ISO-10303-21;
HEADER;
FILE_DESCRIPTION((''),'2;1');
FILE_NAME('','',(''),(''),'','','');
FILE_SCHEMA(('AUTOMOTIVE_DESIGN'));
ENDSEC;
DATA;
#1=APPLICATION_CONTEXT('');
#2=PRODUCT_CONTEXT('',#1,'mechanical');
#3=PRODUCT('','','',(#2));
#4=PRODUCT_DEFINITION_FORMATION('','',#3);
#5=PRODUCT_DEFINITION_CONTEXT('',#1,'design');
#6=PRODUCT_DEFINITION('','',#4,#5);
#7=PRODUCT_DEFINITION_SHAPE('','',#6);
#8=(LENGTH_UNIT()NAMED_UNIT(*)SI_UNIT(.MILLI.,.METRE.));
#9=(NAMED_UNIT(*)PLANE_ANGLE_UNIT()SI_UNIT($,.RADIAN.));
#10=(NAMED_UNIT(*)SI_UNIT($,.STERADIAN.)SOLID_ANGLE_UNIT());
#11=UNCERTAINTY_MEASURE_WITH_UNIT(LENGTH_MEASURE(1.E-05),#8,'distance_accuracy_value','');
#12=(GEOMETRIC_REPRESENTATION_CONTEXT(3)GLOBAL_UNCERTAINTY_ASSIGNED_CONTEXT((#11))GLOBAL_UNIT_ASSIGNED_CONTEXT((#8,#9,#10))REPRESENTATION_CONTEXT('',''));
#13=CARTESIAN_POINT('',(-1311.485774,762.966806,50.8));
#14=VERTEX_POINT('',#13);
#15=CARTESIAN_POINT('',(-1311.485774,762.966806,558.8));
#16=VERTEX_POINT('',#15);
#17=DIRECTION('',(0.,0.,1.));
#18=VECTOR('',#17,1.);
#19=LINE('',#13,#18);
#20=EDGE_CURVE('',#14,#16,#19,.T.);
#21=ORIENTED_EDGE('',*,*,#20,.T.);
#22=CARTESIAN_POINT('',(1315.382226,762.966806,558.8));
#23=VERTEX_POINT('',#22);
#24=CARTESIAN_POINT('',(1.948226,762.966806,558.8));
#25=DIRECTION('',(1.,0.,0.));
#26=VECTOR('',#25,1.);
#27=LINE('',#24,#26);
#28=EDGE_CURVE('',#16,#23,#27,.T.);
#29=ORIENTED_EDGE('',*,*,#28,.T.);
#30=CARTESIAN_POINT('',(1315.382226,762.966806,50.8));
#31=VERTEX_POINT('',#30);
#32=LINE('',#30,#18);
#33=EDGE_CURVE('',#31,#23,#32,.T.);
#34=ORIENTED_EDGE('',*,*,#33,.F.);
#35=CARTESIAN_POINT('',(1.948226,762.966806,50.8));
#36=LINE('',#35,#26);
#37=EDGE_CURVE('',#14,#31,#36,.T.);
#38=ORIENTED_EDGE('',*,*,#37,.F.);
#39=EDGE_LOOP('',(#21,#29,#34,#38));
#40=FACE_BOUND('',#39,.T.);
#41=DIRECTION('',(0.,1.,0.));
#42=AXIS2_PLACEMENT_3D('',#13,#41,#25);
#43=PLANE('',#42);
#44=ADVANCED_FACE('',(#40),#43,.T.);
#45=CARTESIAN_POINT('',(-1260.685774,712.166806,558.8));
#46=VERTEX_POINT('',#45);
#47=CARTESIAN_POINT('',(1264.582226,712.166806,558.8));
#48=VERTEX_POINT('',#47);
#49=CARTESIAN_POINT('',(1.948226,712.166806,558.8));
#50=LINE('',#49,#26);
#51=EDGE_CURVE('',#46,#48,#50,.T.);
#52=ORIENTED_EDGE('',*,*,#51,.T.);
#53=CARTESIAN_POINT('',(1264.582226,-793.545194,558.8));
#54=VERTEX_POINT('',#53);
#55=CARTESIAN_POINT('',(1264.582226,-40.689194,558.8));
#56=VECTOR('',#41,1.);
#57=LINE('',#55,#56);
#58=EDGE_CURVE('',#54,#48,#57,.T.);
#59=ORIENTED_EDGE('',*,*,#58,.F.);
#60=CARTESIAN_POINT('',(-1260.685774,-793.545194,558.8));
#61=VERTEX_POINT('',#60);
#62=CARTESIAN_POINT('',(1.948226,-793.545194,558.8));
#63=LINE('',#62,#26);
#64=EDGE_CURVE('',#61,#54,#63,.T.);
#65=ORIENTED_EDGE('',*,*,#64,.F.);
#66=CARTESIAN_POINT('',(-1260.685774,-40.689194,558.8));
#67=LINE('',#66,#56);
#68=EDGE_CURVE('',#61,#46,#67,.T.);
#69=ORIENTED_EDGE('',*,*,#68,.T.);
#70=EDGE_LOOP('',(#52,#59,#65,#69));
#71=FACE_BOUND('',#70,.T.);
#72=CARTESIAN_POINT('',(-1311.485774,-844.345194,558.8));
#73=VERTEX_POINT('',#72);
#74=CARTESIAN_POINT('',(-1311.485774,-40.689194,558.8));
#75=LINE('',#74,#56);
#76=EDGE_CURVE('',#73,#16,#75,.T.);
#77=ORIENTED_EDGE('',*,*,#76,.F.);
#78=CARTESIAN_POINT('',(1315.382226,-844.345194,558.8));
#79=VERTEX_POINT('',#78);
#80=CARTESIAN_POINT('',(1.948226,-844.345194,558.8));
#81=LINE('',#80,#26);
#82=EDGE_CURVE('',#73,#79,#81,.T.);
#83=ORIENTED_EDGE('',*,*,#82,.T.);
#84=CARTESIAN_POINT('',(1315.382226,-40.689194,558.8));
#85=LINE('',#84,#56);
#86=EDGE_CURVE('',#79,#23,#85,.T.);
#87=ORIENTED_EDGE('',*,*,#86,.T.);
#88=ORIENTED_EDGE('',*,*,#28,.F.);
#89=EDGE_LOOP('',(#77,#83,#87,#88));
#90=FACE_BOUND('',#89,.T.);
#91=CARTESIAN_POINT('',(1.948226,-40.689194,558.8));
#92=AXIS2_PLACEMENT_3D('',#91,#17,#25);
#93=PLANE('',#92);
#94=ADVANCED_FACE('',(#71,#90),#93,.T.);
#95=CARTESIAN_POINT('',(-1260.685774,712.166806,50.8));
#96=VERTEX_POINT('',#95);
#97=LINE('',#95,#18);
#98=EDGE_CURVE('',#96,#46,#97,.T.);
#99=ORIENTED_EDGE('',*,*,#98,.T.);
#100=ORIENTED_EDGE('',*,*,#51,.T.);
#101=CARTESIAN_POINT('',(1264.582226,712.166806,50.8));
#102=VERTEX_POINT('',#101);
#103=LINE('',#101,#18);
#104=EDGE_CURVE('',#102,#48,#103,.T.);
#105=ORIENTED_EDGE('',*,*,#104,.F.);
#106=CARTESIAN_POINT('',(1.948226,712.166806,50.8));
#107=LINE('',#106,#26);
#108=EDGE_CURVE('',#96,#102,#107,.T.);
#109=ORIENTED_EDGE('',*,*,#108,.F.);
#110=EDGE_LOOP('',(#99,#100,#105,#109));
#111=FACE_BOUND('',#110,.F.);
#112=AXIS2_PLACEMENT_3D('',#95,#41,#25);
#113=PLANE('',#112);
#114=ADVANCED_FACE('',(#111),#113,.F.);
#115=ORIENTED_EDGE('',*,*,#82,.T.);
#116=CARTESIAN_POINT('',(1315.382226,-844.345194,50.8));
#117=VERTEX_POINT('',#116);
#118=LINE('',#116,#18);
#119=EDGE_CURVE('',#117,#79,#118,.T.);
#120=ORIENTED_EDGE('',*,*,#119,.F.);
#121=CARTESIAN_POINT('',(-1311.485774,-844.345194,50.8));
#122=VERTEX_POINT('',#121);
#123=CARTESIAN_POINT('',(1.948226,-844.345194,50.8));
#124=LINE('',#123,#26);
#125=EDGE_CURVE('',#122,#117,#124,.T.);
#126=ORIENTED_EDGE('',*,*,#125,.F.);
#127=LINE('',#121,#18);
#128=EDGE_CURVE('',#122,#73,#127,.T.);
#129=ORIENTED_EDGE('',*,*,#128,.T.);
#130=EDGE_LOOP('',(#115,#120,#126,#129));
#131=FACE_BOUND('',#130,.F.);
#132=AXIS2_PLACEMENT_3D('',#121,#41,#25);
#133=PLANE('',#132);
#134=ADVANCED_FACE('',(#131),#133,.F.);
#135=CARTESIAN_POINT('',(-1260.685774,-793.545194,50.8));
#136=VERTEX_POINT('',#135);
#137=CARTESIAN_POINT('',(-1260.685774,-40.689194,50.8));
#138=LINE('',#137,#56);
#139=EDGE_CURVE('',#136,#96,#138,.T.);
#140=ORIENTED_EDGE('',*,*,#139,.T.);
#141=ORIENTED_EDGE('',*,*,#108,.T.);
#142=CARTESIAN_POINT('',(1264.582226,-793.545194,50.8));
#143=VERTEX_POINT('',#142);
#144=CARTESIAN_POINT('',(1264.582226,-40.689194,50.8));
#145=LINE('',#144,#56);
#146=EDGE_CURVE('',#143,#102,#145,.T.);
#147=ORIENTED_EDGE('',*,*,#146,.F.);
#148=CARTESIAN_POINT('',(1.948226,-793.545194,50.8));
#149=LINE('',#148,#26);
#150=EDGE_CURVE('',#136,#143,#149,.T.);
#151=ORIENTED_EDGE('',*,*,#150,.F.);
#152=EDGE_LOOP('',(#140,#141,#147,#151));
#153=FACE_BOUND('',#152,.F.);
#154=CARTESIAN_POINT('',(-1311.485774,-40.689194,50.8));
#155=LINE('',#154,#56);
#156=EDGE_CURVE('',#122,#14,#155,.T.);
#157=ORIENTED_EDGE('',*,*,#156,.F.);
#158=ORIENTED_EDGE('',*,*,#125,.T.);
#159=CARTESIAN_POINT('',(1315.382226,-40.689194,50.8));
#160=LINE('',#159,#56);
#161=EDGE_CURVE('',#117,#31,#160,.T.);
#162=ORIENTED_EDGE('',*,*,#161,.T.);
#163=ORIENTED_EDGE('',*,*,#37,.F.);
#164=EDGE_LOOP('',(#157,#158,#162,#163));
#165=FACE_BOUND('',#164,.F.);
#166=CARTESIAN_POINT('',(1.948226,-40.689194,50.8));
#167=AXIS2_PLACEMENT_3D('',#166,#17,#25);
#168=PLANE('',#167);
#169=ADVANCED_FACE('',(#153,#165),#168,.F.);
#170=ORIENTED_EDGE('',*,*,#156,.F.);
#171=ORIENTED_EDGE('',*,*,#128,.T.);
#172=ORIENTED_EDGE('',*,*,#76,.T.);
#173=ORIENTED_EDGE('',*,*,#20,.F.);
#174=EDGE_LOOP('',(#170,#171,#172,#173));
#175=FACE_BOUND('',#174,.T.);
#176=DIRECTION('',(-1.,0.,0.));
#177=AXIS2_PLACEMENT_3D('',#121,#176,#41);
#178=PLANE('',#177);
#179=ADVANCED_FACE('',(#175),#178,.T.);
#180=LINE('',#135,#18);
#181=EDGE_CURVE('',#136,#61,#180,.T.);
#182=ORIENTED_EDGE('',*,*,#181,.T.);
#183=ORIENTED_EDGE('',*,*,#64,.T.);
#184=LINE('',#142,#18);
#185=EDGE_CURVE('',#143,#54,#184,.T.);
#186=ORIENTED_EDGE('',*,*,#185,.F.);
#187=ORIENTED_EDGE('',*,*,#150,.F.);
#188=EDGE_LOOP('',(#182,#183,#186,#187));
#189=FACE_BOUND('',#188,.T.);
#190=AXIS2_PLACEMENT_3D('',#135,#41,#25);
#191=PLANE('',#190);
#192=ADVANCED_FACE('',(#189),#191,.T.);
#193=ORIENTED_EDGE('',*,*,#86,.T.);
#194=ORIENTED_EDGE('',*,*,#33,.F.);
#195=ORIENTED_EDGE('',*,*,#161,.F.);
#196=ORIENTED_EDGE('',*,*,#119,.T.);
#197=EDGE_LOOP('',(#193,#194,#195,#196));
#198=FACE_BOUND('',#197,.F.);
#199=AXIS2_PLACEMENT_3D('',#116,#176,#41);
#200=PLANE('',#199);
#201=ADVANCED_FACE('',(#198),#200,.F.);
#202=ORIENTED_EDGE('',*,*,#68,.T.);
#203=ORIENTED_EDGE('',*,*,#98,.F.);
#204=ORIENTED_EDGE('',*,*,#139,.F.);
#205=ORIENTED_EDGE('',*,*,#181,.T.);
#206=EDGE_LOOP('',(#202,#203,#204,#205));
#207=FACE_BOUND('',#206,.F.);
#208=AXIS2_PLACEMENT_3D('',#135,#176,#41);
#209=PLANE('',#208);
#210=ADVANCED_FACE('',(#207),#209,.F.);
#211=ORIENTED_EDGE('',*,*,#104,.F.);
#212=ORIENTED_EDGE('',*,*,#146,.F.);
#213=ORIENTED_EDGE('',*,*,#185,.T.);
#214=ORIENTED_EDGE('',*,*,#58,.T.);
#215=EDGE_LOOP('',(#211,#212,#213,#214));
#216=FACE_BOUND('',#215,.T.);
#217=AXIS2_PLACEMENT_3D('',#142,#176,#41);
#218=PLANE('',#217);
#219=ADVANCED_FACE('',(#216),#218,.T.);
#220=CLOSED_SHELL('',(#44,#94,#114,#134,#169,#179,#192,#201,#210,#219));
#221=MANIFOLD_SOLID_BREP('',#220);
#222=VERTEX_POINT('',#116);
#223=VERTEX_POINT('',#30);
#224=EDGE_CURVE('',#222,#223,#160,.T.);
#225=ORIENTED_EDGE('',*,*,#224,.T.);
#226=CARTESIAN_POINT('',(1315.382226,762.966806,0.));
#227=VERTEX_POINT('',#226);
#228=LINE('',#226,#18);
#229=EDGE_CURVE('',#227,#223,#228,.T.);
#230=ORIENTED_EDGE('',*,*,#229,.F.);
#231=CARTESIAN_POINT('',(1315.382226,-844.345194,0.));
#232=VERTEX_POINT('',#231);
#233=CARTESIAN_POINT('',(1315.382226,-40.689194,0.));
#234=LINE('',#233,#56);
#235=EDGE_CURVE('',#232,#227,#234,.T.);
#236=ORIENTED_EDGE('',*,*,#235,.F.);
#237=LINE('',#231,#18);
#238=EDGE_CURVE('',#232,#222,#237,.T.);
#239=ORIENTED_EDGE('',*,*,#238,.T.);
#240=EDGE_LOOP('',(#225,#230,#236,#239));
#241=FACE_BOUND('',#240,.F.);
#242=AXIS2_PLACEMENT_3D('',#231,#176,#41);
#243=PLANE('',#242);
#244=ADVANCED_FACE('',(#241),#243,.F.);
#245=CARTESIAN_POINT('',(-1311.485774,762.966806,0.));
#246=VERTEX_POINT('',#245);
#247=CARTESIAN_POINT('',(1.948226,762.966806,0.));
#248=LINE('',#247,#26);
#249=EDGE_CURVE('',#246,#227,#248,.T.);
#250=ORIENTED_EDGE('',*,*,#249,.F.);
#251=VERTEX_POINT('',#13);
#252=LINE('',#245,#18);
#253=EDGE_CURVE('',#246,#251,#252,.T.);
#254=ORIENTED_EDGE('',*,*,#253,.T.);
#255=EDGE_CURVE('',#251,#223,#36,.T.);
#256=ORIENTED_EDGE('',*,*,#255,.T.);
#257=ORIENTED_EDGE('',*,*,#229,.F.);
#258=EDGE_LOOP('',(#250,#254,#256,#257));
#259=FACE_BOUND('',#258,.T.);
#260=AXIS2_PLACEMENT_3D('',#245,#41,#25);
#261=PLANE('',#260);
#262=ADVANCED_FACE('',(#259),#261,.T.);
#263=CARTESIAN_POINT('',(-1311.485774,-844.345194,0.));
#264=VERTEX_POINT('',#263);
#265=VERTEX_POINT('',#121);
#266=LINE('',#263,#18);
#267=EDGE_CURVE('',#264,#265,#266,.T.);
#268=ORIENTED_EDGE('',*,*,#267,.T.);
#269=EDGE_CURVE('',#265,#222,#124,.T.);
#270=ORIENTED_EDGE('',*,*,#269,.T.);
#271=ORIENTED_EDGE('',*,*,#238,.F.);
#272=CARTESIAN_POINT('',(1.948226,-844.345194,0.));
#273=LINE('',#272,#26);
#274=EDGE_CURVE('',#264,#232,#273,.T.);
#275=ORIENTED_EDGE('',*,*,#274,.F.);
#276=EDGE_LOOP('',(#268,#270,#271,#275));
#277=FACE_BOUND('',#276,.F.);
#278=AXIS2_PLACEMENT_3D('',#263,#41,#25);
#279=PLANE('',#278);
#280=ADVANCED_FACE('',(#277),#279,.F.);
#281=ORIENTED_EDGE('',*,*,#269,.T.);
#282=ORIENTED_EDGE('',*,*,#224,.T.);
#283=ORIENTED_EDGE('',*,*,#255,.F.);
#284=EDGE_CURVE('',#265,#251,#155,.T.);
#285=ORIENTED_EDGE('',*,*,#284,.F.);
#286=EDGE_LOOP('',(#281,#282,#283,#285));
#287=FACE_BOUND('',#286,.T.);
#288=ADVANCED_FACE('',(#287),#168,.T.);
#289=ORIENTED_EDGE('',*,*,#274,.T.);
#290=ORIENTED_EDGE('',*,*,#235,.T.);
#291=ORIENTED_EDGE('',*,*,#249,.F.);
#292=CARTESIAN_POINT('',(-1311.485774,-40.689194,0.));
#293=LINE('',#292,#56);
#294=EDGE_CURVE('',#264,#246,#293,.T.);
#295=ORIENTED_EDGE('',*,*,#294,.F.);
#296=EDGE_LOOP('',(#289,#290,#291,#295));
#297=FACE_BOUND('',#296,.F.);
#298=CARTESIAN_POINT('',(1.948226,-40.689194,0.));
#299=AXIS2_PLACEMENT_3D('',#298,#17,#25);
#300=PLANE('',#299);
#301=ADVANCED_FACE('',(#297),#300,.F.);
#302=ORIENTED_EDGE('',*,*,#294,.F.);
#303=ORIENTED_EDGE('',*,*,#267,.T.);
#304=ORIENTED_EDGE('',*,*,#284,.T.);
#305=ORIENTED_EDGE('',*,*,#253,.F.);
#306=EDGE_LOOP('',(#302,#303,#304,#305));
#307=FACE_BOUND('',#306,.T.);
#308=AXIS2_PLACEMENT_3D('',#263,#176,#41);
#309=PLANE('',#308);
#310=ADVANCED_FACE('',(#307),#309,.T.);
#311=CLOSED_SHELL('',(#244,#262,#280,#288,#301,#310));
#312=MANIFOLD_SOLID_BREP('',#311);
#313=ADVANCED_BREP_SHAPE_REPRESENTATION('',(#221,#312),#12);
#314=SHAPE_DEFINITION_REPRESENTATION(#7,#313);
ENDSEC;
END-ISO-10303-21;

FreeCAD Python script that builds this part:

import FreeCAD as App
import Part
import Sketcher
from FreeCAD import Vector
Q = App.Units.Quantity

doc = App.newDocument("Part")
params = doc.addObject("Spreadsheet::Sheet", "Params")
for row, (alias, value) in enumerate([
    ("sketch1_width", "103.42 in"),
    ("sketch1_height", "63.28 in"),
    ("pad1_length", "2 in"),
    ("sketch2_width", "103.42 in"),
    ("sketch2_height", "63.28 in"),
    ("pad2_length", "20 in"),
], start=1):
    params.set(f"A{row}", alias)
    params.set(f"B{row}", "=" + value)
    params.setAlias(f"B{row}", alias)

body = doc.addObject("PartDesign::Body", "Body")

sketch1 = body.newObject("Sketcher::SketchObject", "Sketch")
sketch1.AttachmentSupport = (doc.getObject("XY_Plane"), [""])
sketch1.MapMode = "FlatFace"
sketch1.addGeometry([
    Part.LineSegment(Vector(-1311, 763, 0), Vector(-1311, -844, 0)),
    Part.LineSegment(Vector(-1311, -844, 0), Vector(1315, -844, 0)),
    Part.LineSegment(Vector(1315, -844, 0), Vector(1315, 763, 0)),
    Part.LineSegment(Vector(1315, 763, 0), Vector(-1311, 763, 0)),
], False)
sketch1.addConstraint([
    Sketcher.Constraint("Coincident", 0, 2, 1, 1),
    Sketcher.Constraint("Coincident", 1, 2, 2, 1),
    Sketcher.Constraint("Coincident", 2, 2, 3, 1),
    Sketcher.Constraint("Coincident", 3, 2, 0, 1),
    Sketcher.Constraint("Vertical", 0),
    Sketcher.Constraint("Horizontal", 1),
    Sketcher.Constraint("Vertical", 2),
    Sketcher.Constraint("Horizontal", 3),
    Sketcher.Constraint("DistanceX", 1, 1, 1, 2, Q("103.42 in")),
    Sketcher.Constraint("DistanceY", 0, 2, 0, 1, Q("63.28 in")),
    Sketcher.Constraint("DistanceX", 0, 2, -1, 1, Q("1311.485774 mm")),
    Sketcher.Constraint("DistanceY", 0, 2, -1, 1, Q("844.345194 mm")),
])
sketch1.setExpression("Constraints[8]", "Params.sketch1_width")
sketch1.setExpression("Constraints[9]", "Params.sketch1_height")
pad1 = body.newObject("PartDesign::Pad", "Pad")
pad1.Profile = sketch1
pad1.setExpression("Length", "Params.pad1_length")
body2 = doc.addObject("PartDesign::Body", "Body001")

sketch2 = body2.newObject("Sketcher::SketchObject", "Sketch001")
sketch2.AttachmentSupport = (doc.getObject("XY_Plane001"), [""])
sketch2.MapMode = "FlatFace"
sketch2.AttachmentOffset = App.Placement(Vector(0, 0, 2 * 25.4), App.Rotation())
sketch2.addGeometry([
    Part.LineSegment(Vector(-1311, 763, 0), Vector(-1311, -844, 0)),
    Part.LineSegment(Vector(-1311, -844, 0), Vector(1315, -844, 0)),
    Part.LineSegment(Vector(1315, -844, 0), Vector(1315, 763, 0)),
    Part.LineSegment(Vector(1315, 763, 0), Vector(-1311, 763, 0)),
    Part.LineSegment(Vector(1265, -794, 0), Vector(-1261, -794, 0)),
    Part.LineSegment(Vector(-1261, -794, 0), Vector(-1261, 712, 0)),
    Part.LineSegment(Vector(-1261, 712, 0), Vector(1265, 712, 0)),
    Part.LineSegment(Vector(1265, 712, 0), Vector(1265, -794, 0)),
], False)
sketch2.addConstraint([
    Sketcher.Constraint("Coincident", 0, 2, 1, 1),
    Sketcher.Constraint("Coincident", 1, 2, 2, 1),
    Sketcher.Constraint("Coincident", 2, 2, 3, 1),
    Sketcher.Constraint("Coincident", 3, 2, 0, 1),
    Sketcher.Constraint("Coincident", 4, 2, 5, 1),
    Sketcher.Constraint("Coincident", 5, 2, 6, 1),
    Sketcher.Constraint("Coincident", 6, 2, 7, 1),
    Sketcher.Constraint("Coincident", 7, 2, 4, 1),
    Sketcher.Constraint("Vertical", 0),
    Sketcher.Constraint("Horizontal", 1),
    Sketcher.Constraint("Vertical", 2),
    Sketcher.Constraint("Horizontal", 3),
    Sketcher.Constraint("Horizontal", 4),
    Sketcher.Constraint("Vertical", 5),
    Sketcher.Constraint("Horizontal", 6),
    Sketcher.Constraint("Vertical", 7),
    Sketcher.Constraint("DistanceX", 0, 2, 4, 2, Q("2 in")),
    Sketcher.Constraint("DistanceY", 0, 2, 4, 2, Q("2 in")),
    Sketcher.Constraint("DistanceY", 5, 2, 3, 2, Q("2 in")),
    Sketcher.Constraint("DistanceX", 6, 2, 2, 2, Q("2 in")),
    Sketcher.Constraint("DistanceX", 1, 1, 1, 2, Q("103.42 in")),
    Sketcher.Constraint("DistanceY", 0, 2, 0, 1, Q("63.28 in")),
    Sketcher.Constraint("DistanceX", 0, 2, -1, 1, Q("1311.485774 mm")),
    Sketcher.Constraint("DistanceY", 0, 2, -1, 1, Q("844.345194 mm")),
])
sketch2.setExpression("Constraints[20]", "Params.sketch2_width")
sketch2.setExpression("Constraints[21]", "Params.sketch2_height")
pad2 = body2.newObject("PartDesign::Pad", "Pad001")
pad2.Profile = sketch2
pad2.setExpression("Length", "Params.pad2_length")

doc.recompute()
